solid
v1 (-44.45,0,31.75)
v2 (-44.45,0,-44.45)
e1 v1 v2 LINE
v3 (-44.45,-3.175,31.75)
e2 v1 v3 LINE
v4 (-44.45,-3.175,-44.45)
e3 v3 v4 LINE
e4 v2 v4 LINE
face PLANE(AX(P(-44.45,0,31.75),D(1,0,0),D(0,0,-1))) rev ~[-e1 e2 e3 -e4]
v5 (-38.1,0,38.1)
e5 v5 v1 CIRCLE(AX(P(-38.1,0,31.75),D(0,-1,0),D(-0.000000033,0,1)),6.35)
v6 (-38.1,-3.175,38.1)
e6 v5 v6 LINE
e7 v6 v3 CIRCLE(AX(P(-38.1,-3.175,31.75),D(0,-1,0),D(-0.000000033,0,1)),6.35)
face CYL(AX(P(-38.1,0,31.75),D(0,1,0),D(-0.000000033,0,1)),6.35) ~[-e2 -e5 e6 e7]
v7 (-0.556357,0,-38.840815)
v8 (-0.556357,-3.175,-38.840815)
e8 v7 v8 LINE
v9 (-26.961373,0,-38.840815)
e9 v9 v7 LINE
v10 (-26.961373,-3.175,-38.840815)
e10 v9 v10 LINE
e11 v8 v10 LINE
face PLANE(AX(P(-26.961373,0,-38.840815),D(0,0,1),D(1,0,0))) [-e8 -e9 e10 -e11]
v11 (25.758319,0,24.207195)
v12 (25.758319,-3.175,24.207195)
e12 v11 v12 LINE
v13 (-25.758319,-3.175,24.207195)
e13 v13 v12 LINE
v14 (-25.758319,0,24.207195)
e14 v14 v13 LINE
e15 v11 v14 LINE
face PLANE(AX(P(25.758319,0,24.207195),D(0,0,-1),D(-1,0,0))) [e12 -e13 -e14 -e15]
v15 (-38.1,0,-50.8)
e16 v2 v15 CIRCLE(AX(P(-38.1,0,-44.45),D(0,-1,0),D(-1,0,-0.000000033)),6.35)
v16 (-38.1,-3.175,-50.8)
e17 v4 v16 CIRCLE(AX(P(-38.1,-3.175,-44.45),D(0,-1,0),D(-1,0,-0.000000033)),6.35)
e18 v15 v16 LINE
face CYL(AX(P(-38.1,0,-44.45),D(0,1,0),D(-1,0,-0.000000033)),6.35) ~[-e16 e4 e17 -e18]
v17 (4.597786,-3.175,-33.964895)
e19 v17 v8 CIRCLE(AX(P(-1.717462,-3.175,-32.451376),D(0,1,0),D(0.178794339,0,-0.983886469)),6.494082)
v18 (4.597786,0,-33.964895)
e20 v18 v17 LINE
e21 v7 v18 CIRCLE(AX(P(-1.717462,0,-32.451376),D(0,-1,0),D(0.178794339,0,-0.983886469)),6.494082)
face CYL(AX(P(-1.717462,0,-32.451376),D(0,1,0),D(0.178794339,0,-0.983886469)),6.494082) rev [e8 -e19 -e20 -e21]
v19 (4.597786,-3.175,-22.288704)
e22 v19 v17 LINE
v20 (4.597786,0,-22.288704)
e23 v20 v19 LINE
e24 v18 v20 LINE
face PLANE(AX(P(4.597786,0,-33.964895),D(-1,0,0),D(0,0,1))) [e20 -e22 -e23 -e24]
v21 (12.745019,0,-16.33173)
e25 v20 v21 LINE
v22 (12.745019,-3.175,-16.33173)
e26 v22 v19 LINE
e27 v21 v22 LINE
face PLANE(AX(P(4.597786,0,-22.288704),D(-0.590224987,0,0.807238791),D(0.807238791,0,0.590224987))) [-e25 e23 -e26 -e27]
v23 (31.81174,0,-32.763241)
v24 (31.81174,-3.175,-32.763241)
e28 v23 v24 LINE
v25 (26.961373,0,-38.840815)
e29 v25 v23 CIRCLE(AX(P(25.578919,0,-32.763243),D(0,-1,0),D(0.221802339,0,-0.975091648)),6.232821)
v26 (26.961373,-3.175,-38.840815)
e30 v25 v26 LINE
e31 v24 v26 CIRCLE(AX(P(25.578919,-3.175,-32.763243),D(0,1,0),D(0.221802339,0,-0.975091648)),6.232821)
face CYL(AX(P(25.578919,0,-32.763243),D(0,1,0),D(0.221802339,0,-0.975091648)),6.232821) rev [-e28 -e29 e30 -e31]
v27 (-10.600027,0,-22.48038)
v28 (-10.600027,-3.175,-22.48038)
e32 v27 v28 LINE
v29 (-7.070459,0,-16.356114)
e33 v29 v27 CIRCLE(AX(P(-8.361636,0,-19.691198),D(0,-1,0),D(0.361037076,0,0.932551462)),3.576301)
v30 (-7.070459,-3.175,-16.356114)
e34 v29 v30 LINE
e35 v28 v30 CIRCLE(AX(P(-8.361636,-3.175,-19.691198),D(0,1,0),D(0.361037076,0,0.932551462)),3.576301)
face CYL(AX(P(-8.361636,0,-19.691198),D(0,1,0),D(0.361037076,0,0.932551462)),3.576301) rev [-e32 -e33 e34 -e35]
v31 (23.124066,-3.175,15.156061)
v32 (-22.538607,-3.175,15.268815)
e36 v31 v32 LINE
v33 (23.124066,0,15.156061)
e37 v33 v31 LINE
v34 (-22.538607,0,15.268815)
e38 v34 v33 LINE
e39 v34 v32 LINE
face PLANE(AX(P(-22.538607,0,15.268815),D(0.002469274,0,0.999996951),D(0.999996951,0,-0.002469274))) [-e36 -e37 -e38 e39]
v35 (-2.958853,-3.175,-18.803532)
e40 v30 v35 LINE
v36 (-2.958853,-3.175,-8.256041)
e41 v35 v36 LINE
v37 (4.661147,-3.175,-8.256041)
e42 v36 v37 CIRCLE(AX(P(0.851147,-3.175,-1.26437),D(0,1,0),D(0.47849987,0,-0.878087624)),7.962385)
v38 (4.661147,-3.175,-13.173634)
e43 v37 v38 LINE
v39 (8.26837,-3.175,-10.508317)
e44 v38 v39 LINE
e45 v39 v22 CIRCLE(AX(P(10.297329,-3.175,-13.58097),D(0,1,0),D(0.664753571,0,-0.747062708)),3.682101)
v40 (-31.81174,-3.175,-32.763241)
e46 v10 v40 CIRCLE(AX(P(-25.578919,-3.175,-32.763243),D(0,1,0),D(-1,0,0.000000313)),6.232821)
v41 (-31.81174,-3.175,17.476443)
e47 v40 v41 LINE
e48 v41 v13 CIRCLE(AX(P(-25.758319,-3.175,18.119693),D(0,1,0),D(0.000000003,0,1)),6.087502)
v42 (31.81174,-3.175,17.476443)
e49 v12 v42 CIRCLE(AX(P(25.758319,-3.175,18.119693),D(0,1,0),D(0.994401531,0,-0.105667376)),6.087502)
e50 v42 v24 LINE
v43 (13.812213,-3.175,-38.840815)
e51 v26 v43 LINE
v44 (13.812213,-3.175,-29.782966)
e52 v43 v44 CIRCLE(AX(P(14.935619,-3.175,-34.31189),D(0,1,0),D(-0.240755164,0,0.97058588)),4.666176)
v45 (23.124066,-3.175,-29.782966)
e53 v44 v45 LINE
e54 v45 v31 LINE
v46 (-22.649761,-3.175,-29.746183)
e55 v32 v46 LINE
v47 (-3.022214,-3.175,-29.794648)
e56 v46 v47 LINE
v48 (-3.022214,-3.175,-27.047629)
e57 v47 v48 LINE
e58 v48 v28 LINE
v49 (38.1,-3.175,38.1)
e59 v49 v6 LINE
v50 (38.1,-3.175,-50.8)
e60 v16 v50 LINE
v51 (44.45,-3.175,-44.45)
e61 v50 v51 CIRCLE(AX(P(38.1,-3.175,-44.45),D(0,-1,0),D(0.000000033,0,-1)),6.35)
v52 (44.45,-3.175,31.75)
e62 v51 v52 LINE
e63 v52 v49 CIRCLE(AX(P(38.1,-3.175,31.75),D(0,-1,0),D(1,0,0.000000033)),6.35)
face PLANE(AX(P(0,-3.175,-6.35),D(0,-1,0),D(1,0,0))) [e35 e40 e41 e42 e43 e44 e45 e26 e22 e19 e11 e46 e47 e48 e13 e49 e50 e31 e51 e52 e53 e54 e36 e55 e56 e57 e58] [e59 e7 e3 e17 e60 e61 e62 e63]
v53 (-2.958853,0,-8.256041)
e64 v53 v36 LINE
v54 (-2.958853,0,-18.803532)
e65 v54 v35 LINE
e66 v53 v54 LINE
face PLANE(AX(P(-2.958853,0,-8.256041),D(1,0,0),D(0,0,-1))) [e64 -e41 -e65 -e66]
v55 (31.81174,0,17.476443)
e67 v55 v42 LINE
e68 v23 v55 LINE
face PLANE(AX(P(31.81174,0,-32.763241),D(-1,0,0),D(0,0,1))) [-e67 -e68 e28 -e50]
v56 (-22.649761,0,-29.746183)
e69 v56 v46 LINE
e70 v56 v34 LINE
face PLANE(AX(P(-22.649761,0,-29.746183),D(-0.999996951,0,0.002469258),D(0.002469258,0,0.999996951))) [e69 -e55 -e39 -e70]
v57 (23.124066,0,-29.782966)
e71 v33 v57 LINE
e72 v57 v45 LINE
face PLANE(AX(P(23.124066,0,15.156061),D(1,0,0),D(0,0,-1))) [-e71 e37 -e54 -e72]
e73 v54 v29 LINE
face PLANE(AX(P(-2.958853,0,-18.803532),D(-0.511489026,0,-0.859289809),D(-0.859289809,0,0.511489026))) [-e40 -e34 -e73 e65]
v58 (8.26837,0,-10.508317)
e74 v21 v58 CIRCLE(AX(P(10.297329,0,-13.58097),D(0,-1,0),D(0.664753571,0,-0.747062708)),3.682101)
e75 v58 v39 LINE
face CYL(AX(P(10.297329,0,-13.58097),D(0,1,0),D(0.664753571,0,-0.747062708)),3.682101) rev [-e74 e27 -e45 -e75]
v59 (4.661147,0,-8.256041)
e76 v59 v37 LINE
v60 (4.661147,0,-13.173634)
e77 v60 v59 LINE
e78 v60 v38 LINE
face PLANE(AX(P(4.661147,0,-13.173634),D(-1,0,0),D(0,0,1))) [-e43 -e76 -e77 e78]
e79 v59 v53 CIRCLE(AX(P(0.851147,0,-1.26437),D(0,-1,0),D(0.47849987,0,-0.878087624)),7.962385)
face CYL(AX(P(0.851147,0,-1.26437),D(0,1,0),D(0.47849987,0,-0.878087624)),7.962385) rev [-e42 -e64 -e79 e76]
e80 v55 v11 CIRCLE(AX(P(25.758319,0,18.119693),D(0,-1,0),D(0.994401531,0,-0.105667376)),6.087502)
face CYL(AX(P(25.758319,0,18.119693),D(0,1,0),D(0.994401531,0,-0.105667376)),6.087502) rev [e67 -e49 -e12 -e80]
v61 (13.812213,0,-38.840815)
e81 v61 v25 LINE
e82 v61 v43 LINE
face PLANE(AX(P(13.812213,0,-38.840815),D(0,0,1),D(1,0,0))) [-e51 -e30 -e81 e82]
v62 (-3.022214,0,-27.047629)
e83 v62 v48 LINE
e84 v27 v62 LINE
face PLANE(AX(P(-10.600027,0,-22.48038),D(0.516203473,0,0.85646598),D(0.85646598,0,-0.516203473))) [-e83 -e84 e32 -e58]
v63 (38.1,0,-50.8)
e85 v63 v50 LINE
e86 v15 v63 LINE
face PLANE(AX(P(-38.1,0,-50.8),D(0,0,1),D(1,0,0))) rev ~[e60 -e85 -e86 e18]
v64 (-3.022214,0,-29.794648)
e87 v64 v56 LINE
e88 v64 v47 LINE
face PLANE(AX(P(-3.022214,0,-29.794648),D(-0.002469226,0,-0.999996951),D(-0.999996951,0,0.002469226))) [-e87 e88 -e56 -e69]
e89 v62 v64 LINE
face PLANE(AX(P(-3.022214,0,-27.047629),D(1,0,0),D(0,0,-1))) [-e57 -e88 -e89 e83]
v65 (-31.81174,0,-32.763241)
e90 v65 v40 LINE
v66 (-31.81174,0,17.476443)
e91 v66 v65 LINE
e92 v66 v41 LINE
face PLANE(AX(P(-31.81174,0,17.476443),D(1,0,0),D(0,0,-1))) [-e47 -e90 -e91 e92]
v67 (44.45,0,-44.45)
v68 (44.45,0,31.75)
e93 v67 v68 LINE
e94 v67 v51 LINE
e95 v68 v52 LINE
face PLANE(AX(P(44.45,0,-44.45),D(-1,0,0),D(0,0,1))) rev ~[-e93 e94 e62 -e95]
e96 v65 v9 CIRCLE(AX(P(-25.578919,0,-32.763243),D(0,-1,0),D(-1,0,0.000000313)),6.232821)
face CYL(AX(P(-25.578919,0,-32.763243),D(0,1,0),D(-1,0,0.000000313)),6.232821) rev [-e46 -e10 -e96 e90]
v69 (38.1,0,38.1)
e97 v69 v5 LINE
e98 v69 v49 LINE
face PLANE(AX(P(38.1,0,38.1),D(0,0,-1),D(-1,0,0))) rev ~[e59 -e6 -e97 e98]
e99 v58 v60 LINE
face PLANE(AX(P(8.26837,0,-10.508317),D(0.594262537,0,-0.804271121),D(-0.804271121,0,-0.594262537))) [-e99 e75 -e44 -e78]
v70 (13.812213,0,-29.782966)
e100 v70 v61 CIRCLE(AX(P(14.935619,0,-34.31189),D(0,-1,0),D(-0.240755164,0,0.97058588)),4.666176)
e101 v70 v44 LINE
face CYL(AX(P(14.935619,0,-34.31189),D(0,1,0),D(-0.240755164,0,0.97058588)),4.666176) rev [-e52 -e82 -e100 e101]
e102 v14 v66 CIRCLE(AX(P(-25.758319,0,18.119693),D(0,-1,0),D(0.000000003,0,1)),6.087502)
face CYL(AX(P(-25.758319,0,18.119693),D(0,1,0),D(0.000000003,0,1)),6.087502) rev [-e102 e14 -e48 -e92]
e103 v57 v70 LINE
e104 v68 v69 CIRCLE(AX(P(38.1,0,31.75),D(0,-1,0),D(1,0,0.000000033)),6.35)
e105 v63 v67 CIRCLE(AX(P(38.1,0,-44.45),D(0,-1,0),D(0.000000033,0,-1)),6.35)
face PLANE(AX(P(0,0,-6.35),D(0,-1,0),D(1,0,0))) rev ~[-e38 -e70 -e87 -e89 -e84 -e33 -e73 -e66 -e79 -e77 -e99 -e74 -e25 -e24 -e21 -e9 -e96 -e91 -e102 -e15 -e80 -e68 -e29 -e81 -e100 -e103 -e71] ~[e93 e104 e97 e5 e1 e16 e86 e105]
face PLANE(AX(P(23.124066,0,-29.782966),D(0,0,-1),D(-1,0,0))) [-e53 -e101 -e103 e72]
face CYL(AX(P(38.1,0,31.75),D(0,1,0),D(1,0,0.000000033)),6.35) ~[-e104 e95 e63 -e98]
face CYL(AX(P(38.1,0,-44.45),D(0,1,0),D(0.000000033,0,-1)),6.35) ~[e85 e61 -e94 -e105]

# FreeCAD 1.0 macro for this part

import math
import FreeCAD as App
import Part
import Sketcher
from FreeCAD import Vector
Q = App.Units.Quantity

doc = App.newDocument("Part")
params = doc.addObject("Spreadsheet::Sheet", "Params")
for row, (alias, value) in enumerate([
    ("sketch1_width", "3 in"),
    ("sketch1_radius", "0.25 in"),
    ("pad1_length", "0.125 in"),
], start=1):
    params.set(f"A{row}", alias)
    params.set(f"B{row}", "=" + value)
    params.setAlias(f"B{row}", alias)

body = doc.addObject("PartDesign::Body", "Body")

sketch1 = body.newObject("Sketcher::SketchObject", "Sketch")
sketch1.AttachmentSupport = (doc.getObject("XZ_Plane"), [""])
sketch1.MapMode = "FlatFace"
sketch1.addGeometry([
    Part.LineSegment(Vector(38.1, 38.1, 0), Vector(-38.1, 38.1, 0)),
    Part.ArcOfCircle(Part.Circle(Vector(-38.1, 31.75, 0), Vector(0, 0, 1), 6.35), math.radians(90.000002), math.radians(179.999998)),
    Part.LineSegment(Vector(-44.45, 31.75, 0), Vector(-44.45, -44.45, 0)),
    Part.ArcOfCircle(Part.Circle(Vector(-38.1, -44.45, 0), Vector(0, 0, 1), 6.35), math.radians(-179.999998), math.radians(-90.000002)),
    Part.LineSegment(Vector(-38.1, -50.8, 0), Vector(38.1, -50.8, 0)),
    Part.ArcOfCircle(Part.Circle(Vector(38.1, -44.45, 0), Vector(0, 0, 1), 6.35), math.radians(-89.999998), math.radians(-0.000002)),
    Part.LineSegment(Vector(44.45, -44.45, 0), Vector(44.45, 31.75, 0)),
    Part.ArcOfCircle(Part.Circle(Vector(38.1, 31.75, 0), Vector(0, 0, 1), 6.35), math.radians(0.000002), math.radians(89.999998)),
], False)
sketch1.addConstraint([
    Sketcher.Constraint("Tangent", 0, 2, 1, 1),
    Sketcher.Constraint("Tangent", 1, 2, 2, 1),
    Sketcher.Constraint("Tangent", 2, 2, 3, 1),
    Sketcher.Constraint("Tangent", 3, 2, 4, 1),
    Sketcher.Constraint("Tangent", 4, 2, 5, 1),
    Sketcher.Constraint("Tangent", 5, 2, 6, 1),
    Sketcher.Constraint("Tangent", 6, 2, 7, 1),
    Sketcher.Constraint("Tangent", 7, 2, 0, 1),
    Sketcher.Constraint("Horizontal", 0),
    Sketcher.Constraint("Vertical", 2),
    Sketcher.Constraint("Horizontal", 4),
    Sketcher.Constraint("Vertical", 6),
    Sketcher.Constraint("Equal", 1, 3),
    Sketcher.Constraint("Equal", 3, 5),
    Sketcher.Constraint("Equal", 5, 7),
    Sketcher.Constraint("Equal", 4, 2),
    Sketcher.Constraint("DistanceX", 0, 2, 0, 1, Q("3 in")),
    Sketcher.Constraint("Radius", 1, Q("0.25 in")),
    Sketcher.Constraint("DistanceY", 3, 2, -1, 1, Q("2 in")),
    Sketcher.Constraint("DistanceX", 1, 3, -1, 1, Q("1.5 in")),
])
sketch1.setExpression("Constraints[16]", "Params.sketch1_width")
sketch1.setExpression("Constraints[17]", "Params.sketch1_radius")
pad1 = body.newObject("PartDesign::Pad", "Pad")
pad1.Profile = sketch1
pad1.setExpression("Length", "Params.pad1_length")

sketch2 = body.newObject("Sketcher::SketchObject", "Sketch001")
sketch2.AttachmentSupport = (doc.getObject("XZ_Plane"), [""])
sketch2.MapMode = "FlatFace"
sketch2.addGeometry([
    Part.LineSegment(Vector(-22.538607, 15.268815, 0), Vector(23.124066, 15.156061, 0)),
    Part.LineSegment(Vector(23.124066, 15.156061, 0), Vector(23.124066, -29.782966, 0)),
    Part.LineSegment(Vector(23.124066, -29.782966, 0), Vector(13.812213, -29.782966, 0)),
    Part.ArcOfCircle(Part.Circle(Vector(14.935619, -34.31189, 0), Vector(0, 0, 1), 4.666176), math.radians(103.931115), math.radians(256.068885)),
    Part.LineSegment(Vector(13.812213, -38.840815, 0), Vector(26.961373, -38.840815, 0)),
    Part.ArcOfCircle(Part.Circle(Vector(25.578919, -32.763243, 0), Vector(0, 0, 1), 6.232821), math.radians(-77.185085), math.radians(0.000018)),
    Part.LineSegment(Vector(31.81174, -32.763241, 0), Vector(31.81174, 17.476443, 0)),
    Part.ArcOfCircle(Part.Circle(Vector(25.758319, 18.119693, 0), Vector(0, 0, 1), 6.087502), math.radians(-6.065618), math.radians(90)),
    Part.LineSegment(Vector(25.758319, 24.207195, 0), Vector(-25.758319, 24.207195, 0)),
    Part.ArcOfCircle(Part.Circle(Vector(-25.758319, 18.119693, 0), Vector(0, 0, 1), 6.087502), math.radians(90), math.radians(186.065618)),
    Part.LineSegment(Vector(-31.81174, 17.476443, 0), Vector(-31.81174, -32.763241, 0)),
    Part.ArcOfCircle(Part.Circle(Vector(-25.578919, -32.763243, 0), Vector(0, 0, 1), 6.232821), math.radians(179.999982), math.radians(257.185085)),
    Part.LineSegment(Vector(-26.961373, -38.840815, 0), Vector(-0.556357, -38.840815, 0)),
    Part.ArcOfCircle(Part.Circle(Vector(-1.717462, -32.451376, 0), Vector(0, 0, 1), 6.494082), math.radians(-79.700459), math.radians(-13.477371)),
    Part.LineSegment(Vector(4.597786, -33.964895, 0), Vector(4.597786, -22.288704, 0)),
    Part.LineSegment(Vector(4.597786, -22.288704, 0), Vector(12.745019, -16.33173, 0)),
    Part.ArcOfCircle(Part.Circle(Vector(10.297329, -13.58097, 0), Vector(0, 0, 1), 3.682101), math.radians(-48.336577), math.radians(123.437908)),
    Part.LineSegment(Vector(8.26837, -10.508317, 0), Vector(4.661147, -13.173634, 0)),
    Part.LineSegment(Vector(4.661147, -13.173634, 0), Vector(4.661147, -8.256041, 0)),
    Part.ArcOfCircle(Part.Circle(Vector(0.851147, -1.26437, 0), Vector(0, 0, 1), 7.962385), math.radians(-61.412528), math.radians(241.412528)),
    Part.LineSegment(Vector(-2.958853, -8.256041, 0), Vector(-2.958853, -18.803532, 0)),
    Part.LineSegment(Vector(-2.958853, -18.803532, 0), Vector(-7.070459, -16.356114, 0)),
    Part.ArcOfCircle(Part.Circle(Vector(-8.361636, -19.691198, 0), Vector(0, 0, 1), 3.576301), math.radians(68.8361), math.radians(231.252049)),
    Part.LineSegment(Vector(-10.600027, -22.48038, 0), Vector(-3.022214, -27.047629, 0)),
    Part.LineSegment(Vector(-3.022214, -27.047629, 0), Vector(-3.022214, -29.794648, 0)),
    Part.LineSegment(Vector(-3.022214, -29.794648, 0), Vector(-22.649761, -29.746183, 0)),
    Part.LineSegment(Vector(-22.649761, -29.746183, 0), Vector(-22.538607, 15.268815, 0)),
], False)
sketch2.addConstraint([
    Sketcher.Constraint("Coincident", 0, 2, 1, 1),
    Sketcher.Constraint("Coincident", 1, 2, 2, 1),
    Sketcher.Constraint("Coincident", 2, 2, 3, 1),
    Sketcher.Constraint("Coincident", 3, 2, 4, 1),
    Sketcher.Constraint("Coincident", 4, 2, 5, 1),
    Sketcher.Constraint("Tangent", 5, 2, 6, 1),
    Sketcher.Constraint("Coincident", 6, 2, 7, 1),
    Sketcher.Constraint("Tangent", 7, 2, 8, 1),
    Sketcher.Constraint("Tangent", 8, 2, 9, 1),
    Sketcher.Constraint("Coincident", 9, 2, 10, 1),
    Sketcher.Constraint("Tangent", 10, 2, 11, 1),
    Sketcher.Constraint("Coincident", 11, 2, 12, 1),
    Sketcher.Constraint("Coincident", 12, 2, 13, 1),
    Sketcher.Constraint("Coincident", 13, 2, 14, 1),
    Sketcher.Constraint("Coincident", 14, 2, 15, 1),
    Sketcher.Constraint("Coincident", 15, 2, 16, 1),
    Sketcher.Constraint("Coincident", 16, 2, 17, 1),
    Sketcher.Constraint("Coincident", 17, 2, 18, 1),
    Sketcher.Constraint("Coincident", 18, 2, 19, 1),
    Sketcher.Constraint("Coincident", 19, 2, 20, 1),
    Sketcher.Constraint("Coincident", 20, 2, 21, 1),
    Sketcher.Constraint("Coincident", 21, 2, 22, 1),
    Sketcher.Constraint("Coincident", 22, 2, 23, 1),
    Sketcher.Constraint("Coincident", 23, 2, 24, 1),
    Sketcher.Constraint("Coincident", 24, 2, 25, 1),
    Sketcher.Constraint("Coincident", 25, 2, 26, 1),
    Sketcher.Constraint("Coincident", 26, 2, 0, 1),
    Sketcher.Constraint("Vertical", 1),
    Sketcher.Constraint("Horizontal", 2),
    Sketcher.Constraint("Horizontal", 4),
    Sketcher.Constraint("Vertical", 6),
    Sketcher.Constraint("Horizontal", 8),
    Sketcher.Constraint("Vertical", 10),
    Sketcher.Constraint("Horizontal", 12),
    Sketcher.Constraint("Vertical", 14),
    Sketcher.Constraint("Vertical", 18),
    Sketcher.Constraint("Vertical", 20),
    Sketcher.Constraint("Vertical", 24),
    Sketcher.Constraint("Equal", 7, 9),
    Sketcher.Constraint("Equal", 5, 11),
    Sketcher.Constraint("Symmetric", 5, 3, 11, 3, -2),
    Sketcher.Constraint("Parallel", 0, 25),
    Sketcher.Constraint("Perpendicular", 25, 26),
    Sketcher.Constraint("Horizontal", 6, 2, 9, 2),
    Sketcher.Constraint("Horizontal", 4, 2, 11, 2),
    Sketcher.Constraint("Horizontal", 18, 2, 19, 2),
    Sketcher.Constraint("Vertical", 2, 2, 3, 2),
    Sketcher.Constraint("DistanceX", 19, 2, 18, 2, Q("0.3 in")),
    Sketcher.Constraint("DistanceX", 23, 2, 14, 2, Q("0.3 in")),
    Sketcher.Constraint("Radius", 7, 6.087502),
    Sketcher.Constraint("Radius", 16, 3.682101),
    Sketcher.Constraint("Radius", 22, 3.576301),
    Sketcher.Constraint("Radius", 5, 6.232821),
    Sketcher.Constraint("Radius", 13, 6.494082),
    Sketcher.Constraint("Radius", 3, 4.666176),
    Sketcher.Constraint("Radius", 19, 7.962385),
    Sketcher.Constraint("DistanceX", 4, 1, 4, 2, 13.14916),
    Sketcher.Constraint("DistanceY", 14, 1, 14, 2, 11.676191),
    Sketcher.Constraint("DistanceY", 20, 2, 20, 1, 10.547491),
    Sketcher.Constraint("DistanceY", 24, 2, 24, 1, 2.747019),
    Sketcher.Constraint("DistanceY", 22, 3, -1, 1, 19.691198),
    Sketcher.Constraint("DistanceX", 3, 3, 5, 3, 10.6433),
    Sketcher.Constraint("DistanceX", 5, 3, 7, 3, 0.1794),
    Sketcher.Constraint("DistanceY", 16, 3, 19, 3, 12.3166),
    Sketcher.Constraint("DistanceX", 15, 2, 3, 3, 2.1906),
    Sketcher.Constraint("DistanceY", 20, 2, 17, 2, 5.629898),
    Sketcher.Constraint("Distance", 21, 4.784889),
    Sketcher.Constraint("Distance", 23, 8.847769),
    Sketcher.Constraint("DistanceX", 2, 2, 2, 1, 9.311853),
    Sketcher.Constraint("DistanceX", 8, 2, 8, 1, 51.516638),
    Sketcher.Constraint("DistanceX", 12, 1, 12, 2, 26.405016),
    Sketcher.Constraint("DistanceY", 1, 2, 1, 1, 44.939027),
    Sketcher.Constraint("DistanceY", 6, 1, 6, 2, 50.239684),
    Sketcher.Constraint("DistanceY", 3, 3, -1, 1, 34.31189),
    Sketcher.Constraint("DistanceX", -1, 1, 16, 3, 10.297329),
    Sketcher.Constraint("DistanceY", 16, 3, -1, 1, 13.58097),
    Sketcher.Constraint("DistanceY", -1, 1, 0, 2, 15.156061),
    Sketcher.Constraint("DistanceX", -1, 1, 16, 2, 8.26837),
    Sketcher.Constraint("DistanceX", 21, 2, -1, 1, 7.070459),
    Sketcher.Constraint("DistanceY", 22, 2, -1, 1, 22.48038),
    Sketcher.Constraint("DistanceY", 23, 2, -1, 1, 27.047629),
    Sketcher.Constraint("DistanceX", 25, 2, -1, 1, 22.649761),
    Sketcher.Constraint("DistanceX", 13, 3, 3, 3, 16.653081),
    Sketcher.Constraint("DistanceX", 13, 3, 19, 3, 2.568609),
    Sketcher.Constraint("DistanceY", 11, 3, 25, 2, 3.01706),
])
pocket1 = body.newObject("PartDesign::Pocket", "Pocket")
pocket1.Profile = sketch2
pocket1.Type = "ThroughAll"
pocket1.Reversed = True

doc.recompute()
